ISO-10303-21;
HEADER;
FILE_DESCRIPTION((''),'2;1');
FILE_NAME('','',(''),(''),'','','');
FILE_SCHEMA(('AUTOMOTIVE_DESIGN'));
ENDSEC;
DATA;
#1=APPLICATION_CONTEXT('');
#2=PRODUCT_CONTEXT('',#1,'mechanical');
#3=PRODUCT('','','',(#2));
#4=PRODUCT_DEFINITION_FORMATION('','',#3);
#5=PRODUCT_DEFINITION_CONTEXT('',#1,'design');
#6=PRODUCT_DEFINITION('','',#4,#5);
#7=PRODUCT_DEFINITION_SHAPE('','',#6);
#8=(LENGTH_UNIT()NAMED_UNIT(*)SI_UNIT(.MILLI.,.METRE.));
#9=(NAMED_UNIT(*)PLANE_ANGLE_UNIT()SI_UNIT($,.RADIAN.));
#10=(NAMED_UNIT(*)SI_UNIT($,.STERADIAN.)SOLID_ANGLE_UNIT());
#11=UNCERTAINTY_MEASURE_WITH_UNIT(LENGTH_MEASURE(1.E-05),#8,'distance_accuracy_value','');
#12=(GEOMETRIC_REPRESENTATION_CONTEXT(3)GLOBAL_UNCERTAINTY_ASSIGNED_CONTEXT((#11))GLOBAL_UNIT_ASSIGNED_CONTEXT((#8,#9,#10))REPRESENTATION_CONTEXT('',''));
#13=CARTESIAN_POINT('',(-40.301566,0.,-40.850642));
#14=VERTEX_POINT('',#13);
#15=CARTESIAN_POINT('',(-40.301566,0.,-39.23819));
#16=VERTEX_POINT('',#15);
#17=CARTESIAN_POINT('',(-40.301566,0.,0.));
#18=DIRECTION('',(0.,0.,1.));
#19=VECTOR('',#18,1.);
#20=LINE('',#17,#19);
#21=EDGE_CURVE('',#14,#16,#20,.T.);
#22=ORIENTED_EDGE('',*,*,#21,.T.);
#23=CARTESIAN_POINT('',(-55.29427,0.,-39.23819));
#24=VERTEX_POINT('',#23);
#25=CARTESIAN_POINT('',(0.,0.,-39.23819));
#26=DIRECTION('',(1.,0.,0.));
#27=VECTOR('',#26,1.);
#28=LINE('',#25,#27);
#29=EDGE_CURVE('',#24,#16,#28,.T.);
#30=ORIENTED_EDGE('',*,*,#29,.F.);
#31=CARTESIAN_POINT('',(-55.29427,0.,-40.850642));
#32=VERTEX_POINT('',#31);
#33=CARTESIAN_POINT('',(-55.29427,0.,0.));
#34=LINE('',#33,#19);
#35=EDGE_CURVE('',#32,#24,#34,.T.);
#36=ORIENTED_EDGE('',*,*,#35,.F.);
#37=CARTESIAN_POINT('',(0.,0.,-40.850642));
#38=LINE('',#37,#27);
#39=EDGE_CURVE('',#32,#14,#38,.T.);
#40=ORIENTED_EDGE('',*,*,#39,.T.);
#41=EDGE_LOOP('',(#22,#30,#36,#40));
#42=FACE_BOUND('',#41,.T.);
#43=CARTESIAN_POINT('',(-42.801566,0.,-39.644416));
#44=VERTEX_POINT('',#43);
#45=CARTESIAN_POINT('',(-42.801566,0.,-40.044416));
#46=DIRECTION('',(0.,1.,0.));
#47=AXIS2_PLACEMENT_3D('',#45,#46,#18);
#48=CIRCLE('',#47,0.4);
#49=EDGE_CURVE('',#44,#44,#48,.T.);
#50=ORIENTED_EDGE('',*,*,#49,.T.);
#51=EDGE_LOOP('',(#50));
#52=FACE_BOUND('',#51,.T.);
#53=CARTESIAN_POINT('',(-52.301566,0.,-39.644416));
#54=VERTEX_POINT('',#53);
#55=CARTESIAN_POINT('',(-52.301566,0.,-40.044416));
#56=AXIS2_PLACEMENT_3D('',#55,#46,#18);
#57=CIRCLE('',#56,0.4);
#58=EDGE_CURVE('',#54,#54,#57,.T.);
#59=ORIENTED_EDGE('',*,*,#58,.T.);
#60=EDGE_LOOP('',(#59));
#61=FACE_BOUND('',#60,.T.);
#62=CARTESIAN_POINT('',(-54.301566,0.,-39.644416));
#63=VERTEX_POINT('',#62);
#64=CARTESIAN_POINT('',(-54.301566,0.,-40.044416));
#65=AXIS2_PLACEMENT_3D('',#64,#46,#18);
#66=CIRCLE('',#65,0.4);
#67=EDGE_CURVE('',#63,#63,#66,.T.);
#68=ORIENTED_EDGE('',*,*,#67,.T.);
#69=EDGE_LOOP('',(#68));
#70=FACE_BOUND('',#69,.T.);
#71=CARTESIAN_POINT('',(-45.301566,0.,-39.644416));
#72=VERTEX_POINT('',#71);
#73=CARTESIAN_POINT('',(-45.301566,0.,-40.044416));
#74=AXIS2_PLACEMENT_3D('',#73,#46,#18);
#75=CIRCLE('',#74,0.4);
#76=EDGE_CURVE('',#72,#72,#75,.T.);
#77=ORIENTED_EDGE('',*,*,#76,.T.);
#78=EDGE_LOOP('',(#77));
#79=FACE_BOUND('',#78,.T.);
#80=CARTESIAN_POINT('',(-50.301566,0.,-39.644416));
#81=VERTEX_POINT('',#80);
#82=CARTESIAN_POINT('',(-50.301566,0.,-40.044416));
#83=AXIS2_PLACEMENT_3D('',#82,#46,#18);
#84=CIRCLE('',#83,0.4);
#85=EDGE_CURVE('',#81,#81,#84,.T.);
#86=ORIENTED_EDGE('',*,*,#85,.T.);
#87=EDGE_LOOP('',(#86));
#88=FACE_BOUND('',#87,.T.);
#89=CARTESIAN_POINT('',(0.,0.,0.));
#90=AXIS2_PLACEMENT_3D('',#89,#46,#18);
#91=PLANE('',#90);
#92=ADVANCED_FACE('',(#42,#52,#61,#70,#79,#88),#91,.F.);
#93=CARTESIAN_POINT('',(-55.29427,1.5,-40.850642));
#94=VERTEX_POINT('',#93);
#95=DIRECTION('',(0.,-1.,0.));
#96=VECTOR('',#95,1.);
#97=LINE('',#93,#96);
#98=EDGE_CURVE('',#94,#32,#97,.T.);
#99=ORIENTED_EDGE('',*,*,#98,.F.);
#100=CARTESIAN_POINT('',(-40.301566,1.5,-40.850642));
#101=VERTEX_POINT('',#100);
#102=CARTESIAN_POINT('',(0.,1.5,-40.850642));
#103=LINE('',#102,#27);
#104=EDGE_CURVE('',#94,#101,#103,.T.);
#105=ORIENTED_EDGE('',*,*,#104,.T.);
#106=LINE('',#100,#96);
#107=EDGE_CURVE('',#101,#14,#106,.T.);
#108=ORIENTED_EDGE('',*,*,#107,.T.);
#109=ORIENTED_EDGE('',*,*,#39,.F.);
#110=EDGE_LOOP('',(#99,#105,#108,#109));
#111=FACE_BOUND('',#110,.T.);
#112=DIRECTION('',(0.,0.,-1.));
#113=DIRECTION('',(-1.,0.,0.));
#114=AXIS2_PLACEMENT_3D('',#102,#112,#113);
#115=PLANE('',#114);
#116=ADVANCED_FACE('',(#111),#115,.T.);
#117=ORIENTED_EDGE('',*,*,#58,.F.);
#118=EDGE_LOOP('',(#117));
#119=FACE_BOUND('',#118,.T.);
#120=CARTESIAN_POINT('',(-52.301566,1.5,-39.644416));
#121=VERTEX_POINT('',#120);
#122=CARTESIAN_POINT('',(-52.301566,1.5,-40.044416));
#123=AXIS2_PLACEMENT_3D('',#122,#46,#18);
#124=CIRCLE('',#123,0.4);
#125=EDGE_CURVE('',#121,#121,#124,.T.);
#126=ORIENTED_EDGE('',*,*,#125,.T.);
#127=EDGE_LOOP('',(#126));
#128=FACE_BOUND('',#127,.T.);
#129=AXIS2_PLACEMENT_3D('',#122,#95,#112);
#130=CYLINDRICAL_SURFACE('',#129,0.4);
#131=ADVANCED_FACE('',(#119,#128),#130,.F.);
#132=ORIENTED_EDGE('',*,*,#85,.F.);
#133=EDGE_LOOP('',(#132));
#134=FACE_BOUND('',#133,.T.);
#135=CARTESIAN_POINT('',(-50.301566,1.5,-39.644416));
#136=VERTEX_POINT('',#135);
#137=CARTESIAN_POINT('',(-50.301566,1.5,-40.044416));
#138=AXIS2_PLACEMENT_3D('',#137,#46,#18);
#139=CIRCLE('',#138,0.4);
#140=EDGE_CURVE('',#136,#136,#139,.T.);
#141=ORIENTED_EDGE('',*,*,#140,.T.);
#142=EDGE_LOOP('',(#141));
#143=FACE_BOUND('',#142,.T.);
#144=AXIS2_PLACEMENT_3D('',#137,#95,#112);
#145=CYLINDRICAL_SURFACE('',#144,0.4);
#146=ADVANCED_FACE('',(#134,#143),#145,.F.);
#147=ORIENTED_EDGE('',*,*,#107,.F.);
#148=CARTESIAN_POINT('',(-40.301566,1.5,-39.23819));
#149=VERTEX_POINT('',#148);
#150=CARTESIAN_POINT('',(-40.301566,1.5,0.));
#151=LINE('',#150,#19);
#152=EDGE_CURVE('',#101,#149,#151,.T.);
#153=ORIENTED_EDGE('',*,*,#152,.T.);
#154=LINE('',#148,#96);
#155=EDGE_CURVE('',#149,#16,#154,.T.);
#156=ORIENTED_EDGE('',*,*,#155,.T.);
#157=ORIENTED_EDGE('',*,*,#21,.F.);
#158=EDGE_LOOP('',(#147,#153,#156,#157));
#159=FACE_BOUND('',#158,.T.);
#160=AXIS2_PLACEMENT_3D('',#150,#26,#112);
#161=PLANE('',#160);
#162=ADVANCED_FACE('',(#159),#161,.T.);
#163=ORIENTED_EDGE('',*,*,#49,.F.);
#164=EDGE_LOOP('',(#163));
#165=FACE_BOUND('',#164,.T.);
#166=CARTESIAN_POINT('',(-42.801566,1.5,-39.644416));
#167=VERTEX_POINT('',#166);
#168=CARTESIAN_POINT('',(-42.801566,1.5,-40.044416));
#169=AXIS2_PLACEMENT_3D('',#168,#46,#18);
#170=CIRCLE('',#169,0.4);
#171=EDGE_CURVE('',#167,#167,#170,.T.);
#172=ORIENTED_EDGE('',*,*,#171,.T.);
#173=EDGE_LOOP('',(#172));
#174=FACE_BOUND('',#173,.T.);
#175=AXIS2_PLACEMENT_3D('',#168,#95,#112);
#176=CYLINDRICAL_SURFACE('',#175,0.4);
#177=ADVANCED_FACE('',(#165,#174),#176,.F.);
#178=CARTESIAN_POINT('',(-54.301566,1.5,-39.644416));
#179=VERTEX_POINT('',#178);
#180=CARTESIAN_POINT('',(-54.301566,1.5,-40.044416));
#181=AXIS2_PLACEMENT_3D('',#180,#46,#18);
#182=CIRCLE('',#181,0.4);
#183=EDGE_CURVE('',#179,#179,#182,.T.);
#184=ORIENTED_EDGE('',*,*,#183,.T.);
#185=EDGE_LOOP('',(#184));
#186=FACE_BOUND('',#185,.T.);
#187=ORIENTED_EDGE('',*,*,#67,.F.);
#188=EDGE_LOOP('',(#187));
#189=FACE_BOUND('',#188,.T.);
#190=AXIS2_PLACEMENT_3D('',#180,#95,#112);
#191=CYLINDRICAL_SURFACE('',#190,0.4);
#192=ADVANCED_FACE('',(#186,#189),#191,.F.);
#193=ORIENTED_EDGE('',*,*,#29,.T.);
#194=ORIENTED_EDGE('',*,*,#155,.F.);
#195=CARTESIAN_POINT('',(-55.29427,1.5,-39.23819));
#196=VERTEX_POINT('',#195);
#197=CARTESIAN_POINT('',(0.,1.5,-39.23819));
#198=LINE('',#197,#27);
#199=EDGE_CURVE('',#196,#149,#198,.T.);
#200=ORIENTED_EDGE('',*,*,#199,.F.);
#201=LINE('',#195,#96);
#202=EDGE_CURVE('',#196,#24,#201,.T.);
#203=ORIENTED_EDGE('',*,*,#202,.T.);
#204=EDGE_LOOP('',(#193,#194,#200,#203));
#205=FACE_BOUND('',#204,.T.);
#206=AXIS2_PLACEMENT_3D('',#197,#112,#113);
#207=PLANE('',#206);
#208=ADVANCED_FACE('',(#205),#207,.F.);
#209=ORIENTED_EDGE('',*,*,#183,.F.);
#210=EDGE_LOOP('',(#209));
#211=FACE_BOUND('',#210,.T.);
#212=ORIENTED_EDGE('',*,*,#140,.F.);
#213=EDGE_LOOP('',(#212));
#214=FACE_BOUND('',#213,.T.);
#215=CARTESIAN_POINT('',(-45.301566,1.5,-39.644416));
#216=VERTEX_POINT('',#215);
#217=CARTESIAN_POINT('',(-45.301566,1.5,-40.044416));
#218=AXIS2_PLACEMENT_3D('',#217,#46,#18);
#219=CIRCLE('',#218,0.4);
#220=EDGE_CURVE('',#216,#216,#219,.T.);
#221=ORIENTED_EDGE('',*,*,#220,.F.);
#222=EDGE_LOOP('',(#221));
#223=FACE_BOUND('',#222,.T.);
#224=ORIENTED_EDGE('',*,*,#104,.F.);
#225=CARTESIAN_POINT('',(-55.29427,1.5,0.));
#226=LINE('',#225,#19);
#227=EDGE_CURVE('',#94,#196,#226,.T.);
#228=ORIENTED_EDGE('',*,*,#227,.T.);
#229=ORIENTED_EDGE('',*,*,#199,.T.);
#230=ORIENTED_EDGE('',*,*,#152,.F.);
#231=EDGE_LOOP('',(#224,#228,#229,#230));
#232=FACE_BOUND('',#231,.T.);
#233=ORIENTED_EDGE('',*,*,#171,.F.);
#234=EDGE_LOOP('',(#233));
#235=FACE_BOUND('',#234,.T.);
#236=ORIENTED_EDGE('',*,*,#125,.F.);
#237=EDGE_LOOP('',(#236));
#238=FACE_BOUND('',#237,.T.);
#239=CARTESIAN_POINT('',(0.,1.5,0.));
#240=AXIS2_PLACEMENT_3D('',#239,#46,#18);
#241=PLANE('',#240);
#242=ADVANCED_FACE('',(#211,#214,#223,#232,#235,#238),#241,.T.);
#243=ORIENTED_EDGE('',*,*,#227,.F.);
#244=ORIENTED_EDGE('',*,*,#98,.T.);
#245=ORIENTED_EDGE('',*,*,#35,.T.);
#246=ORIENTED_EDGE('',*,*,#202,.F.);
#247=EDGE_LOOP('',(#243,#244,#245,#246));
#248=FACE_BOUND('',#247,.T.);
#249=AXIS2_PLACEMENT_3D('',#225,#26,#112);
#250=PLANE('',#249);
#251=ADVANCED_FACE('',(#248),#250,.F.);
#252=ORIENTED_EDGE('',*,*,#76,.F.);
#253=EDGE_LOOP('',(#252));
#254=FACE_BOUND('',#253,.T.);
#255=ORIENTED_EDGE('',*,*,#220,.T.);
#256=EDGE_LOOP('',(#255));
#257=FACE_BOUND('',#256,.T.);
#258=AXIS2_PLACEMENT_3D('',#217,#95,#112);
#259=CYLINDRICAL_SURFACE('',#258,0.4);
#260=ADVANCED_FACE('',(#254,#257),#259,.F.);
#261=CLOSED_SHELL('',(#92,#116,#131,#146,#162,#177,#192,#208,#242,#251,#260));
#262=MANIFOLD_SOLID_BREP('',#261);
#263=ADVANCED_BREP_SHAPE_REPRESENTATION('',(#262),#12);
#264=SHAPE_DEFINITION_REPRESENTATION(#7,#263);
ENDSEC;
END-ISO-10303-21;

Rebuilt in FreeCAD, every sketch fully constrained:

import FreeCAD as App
import Part
import Sketcher

V = App.Vector


def add_polygon(sketch, points):
    """Adds a closed chain of lines whose ends are joined by coincident constraints."""
    first, n = sketch.GeometryCount, len(points)
    for a, b in zip(points, points[1:] + points[:1]):
        sketch.addGeometry(Part.LineSegment(App.Vector(*a, 0), App.Vector(*b, 0)), False)
    for i in range(n):
        sketch.addConstraint(Sketcher.Constraint("Coincident", first + i, 2, first + (i + 1) % n, 1))

doc = App.newDocument("Part")
body = doc.addObject("PartDesign::Body", "Body")

# Sketch on XZ plane
sketch1 = doc.addObject("Sketcher::SketchObject", "Sketch")
body.addObject(sketch1)
sketch1.AttachmentSupport = (doc.XZ_Plane, [""])
sketch1.MapMode = "FlatFace"
add_polygon(sketch1, [(-55.29, -39.24), (-40.3, -39.24), (-40.3, -40.85), (-55.29, -40.85)])  # lines 0-3
sketch1.addGeometry(Part.Circle(V(-54.3, -40.04, 0), V(0, 0, 1), 0.4), False)  # 4
sketch1.addGeometry(Part.Circle(V(-52.3, -40.04, 0), V(0, 0, 1), 0.4), False)  # 5
sketch1.addGeometry(Part.Circle(V(-50.3, -40.04, 0), V(0, 0, 1), 0.4), False)  # 6
sketch1.addGeometry(Part.Circle(V(-45.3, -40.04, 0), V(0, 0, 1), 0.4), False)  # 7
sketch1.addGeometry(Part.Circle(V(-42.8, -40.04, 0), V(0, 0, 1), 0.4), False)  # 8
sketch1.addConstraint([
    Sketcher.Constraint("Horizontal", 0),
    Sketcher.Constraint("Vertical", 1),
    Sketcher.Constraint("Horizontal", 2),
    Sketcher.Constraint("Vertical", 3),
    Sketcher.Constraint("Equal", 4, 5),
    Sketcher.Constraint("Equal", 5, 6),
    Sketcher.Constraint("Equal", 6, 7),
    Sketcher.Constraint("Equal", 7, 8),
    Sketcher.Constraint("Horizontal", 4, 3, 5, 3),
    Sketcher.Constraint("Horizontal", 5, 3, 6, 3),
    Sketcher.Constraint("Horizontal", 6, 3, 7, 3),
    Sketcher.Constraint("Horizontal", 7, 3, 8, 3),
    Sketcher.Constraint("Diameter", 4, 0.8),
    Sketcher.Constraint("DistanceX", 4, 3, 5, 3, 2.0),
    Sketcher.Constraint("DistanceX", 5, 3, 6, 3, 2.0),
    Sketcher.Constraint("DistanceX", 6, 3, 7, 3, 5.0),
    Sketcher.Constraint("DistanceX", 7, 3, 0, 2, 5.0),
    Sketcher.Constraint("DistanceX", 7, 3, 8, 3, 2.5),
    Sketcher.Constraint("DistanceY", 1, 2, 1, 1, 1.612452),
    Sketcher.Constraint("DistanceX", 0, 1, 0, 2, 14.992704),
    Sketcher.Constraint("DistanceY", 0, 2, -1, 1, 39.23819),
    Sketcher.Constraint("DistanceX", 2, 2, -1, 1, 55.29427),
    Sketcher.Constraint("DistanceY", 4, 3, -1, 1, 40.044416),
])
pad1 = doc.addObject("PartDesign::Pad", "Pad")
body.addObject(pad1)
pad1.Profile = sketch1
pad1.Length = 1.5
pad1.Reversed = True

doc.recompute()
